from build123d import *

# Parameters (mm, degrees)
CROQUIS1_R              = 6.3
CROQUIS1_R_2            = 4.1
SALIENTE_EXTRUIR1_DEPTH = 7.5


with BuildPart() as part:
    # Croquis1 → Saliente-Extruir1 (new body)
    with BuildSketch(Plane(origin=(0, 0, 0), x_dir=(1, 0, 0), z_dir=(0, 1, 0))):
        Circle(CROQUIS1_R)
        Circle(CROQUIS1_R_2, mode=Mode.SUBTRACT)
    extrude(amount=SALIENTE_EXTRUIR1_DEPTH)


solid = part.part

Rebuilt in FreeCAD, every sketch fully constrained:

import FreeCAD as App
import Part
import Sketcher
from FreeCAD import Vector
Q = App.Units.Quantity

doc = App.newDocument("Part")
body = doc.addObject("PartDesign::Body", "Body")

# Sketch on XZ plane
sketch1 = body.newObject("Sketcher::SketchObject", "Sketch")
sketch1.AttachmentSupport = (doc.getObject("XZ_Plane"), [""])
sketch1.MapMode = "FlatFace"
sketch1.addGeometry(Part.Circle(Vector(0, 0, 0), Vector(0, 0, 1), 6.3), False)
sketch1.addGeometry(Part.Circle(Vector(0, 0, 0), Vector(0, 0, 1), 4.1), False)
sketch1.addConstraint(Sketcher.Constraint("Coincident", 0, 3, -1, 1))
sketch1.addConstraint(Sketcher.Constraint("Coincident", 1, 3, -1, 1))
sketch1.addConstraint(Sketcher.Constraint("Diameter", 0, Q("12.6 mm")))
sketch1.addConstraint(Sketcher.Constraint("Diameter", 1, Q("8.2 mm")))
pad1 = body.newObject("PartDesign::Pad", "Pad")
pad1.Profile = sketch1
pad1.Length = 7.5
pad1.Reversed = True

doc.recompute()
